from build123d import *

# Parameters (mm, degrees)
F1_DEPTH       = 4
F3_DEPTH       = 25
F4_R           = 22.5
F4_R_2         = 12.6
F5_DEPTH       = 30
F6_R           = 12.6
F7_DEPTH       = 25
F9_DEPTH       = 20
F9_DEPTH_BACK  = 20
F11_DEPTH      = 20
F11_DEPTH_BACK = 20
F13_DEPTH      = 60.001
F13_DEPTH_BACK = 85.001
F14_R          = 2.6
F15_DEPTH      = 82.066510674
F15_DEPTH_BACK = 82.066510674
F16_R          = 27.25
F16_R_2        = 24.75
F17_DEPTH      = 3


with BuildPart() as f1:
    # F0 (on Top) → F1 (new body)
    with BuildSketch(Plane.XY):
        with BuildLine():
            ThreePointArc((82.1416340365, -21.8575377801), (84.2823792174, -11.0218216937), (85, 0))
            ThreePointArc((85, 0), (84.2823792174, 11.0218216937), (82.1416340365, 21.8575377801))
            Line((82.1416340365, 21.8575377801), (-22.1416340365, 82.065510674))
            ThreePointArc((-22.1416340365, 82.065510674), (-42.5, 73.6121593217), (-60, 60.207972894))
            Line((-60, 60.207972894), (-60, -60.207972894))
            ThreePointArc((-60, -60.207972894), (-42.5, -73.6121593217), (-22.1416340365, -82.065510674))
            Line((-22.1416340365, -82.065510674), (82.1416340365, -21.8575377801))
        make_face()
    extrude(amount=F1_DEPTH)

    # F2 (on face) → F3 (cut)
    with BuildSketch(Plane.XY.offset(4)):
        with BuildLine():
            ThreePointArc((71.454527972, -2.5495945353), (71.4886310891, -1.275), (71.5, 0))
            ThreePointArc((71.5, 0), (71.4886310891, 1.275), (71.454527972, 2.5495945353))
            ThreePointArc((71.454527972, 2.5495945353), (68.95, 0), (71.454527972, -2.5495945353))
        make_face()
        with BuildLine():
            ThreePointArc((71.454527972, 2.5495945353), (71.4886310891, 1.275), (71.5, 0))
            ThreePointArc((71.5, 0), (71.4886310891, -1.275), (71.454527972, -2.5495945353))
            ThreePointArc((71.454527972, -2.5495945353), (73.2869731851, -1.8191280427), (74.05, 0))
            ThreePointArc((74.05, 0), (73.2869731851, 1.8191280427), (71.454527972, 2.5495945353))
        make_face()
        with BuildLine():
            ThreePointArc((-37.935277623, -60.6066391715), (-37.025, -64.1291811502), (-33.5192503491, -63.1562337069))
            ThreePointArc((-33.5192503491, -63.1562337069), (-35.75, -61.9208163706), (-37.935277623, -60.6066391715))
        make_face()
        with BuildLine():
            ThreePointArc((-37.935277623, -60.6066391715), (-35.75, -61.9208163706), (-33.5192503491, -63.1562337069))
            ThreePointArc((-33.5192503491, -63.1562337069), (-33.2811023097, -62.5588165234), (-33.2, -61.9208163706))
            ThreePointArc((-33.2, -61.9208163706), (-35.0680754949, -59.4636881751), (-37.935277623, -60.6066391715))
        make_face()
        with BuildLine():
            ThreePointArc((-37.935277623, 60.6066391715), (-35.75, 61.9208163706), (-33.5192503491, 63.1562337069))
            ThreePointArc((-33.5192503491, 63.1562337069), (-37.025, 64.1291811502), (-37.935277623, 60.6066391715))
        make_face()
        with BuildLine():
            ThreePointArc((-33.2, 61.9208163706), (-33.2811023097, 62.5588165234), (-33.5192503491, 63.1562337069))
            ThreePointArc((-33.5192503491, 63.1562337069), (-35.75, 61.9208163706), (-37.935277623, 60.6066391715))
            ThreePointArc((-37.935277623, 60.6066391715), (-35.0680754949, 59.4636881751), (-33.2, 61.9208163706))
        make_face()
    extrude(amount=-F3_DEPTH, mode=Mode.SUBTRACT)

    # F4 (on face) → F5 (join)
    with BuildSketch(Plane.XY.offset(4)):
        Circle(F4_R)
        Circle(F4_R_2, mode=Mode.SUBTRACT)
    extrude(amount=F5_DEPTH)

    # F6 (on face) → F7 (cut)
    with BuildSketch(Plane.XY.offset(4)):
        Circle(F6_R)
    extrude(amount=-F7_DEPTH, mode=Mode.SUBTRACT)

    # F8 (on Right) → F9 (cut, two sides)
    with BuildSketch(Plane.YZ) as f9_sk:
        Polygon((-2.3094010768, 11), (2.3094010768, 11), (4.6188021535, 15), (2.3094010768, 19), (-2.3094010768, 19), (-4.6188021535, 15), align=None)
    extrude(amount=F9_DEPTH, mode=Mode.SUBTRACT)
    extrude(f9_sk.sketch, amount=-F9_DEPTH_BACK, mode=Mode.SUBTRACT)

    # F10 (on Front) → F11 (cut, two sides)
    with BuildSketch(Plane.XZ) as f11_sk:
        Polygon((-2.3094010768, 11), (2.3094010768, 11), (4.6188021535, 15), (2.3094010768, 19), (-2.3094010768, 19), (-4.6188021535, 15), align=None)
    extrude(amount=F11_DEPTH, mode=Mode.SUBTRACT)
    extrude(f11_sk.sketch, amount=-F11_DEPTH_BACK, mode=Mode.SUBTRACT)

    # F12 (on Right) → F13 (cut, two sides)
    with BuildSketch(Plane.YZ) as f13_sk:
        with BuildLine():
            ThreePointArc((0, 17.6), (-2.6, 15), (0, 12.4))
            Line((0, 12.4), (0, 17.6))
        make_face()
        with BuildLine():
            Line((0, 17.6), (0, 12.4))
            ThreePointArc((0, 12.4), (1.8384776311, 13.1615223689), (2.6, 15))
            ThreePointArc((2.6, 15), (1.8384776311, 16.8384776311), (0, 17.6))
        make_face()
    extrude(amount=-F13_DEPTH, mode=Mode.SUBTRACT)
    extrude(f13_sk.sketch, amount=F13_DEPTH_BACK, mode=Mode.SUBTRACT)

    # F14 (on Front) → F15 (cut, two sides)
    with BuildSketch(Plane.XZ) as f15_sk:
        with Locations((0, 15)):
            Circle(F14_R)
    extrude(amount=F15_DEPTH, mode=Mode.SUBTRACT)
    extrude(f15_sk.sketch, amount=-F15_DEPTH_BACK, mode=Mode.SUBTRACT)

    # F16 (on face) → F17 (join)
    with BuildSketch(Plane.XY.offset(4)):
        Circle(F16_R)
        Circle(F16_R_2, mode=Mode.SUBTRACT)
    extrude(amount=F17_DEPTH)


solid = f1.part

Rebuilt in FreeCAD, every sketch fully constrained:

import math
import FreeCAD as App
import Part
import Sketcher

V = App.Vector
Q = App.Units.Quantity

doc = App.newDocument("Part")
body = doc.addObject("PartDesign::Body", "Body")

sketch1 = body.newObject("Sketcher::SketchObject", "Sketch")
sketch1.AttachmentSupport = (doc.getObject("XY_Plane"), [""])
sketch1.MapMode = "FlatFace"
sketch1.addGeometry([
    Part.ArcOfCircle(Part.Circle(V(0, 0, 0), V(0, 0, 1), 85), math.radians(-14.9), math.radians(0)),
    Part.ArcOfCircle(Part.Circle(V(0, 0, 0), V(0, 0, 1), 85), math.radians(0), math.radians(14.9)),
    Part.LineSegment(V(82, 22, 0), V(-22, 82, 0)),
    Part.ArcOfCircle(Part.Circle(V(0, 0, 0), V(0, 0, 1), 85), math.radians(105), math.radians(135)),
    Part.LineSegment(V(-60, 60, 0), V(-60, -60, 0)),
    Part.ArcOfCircle(Part.Circle(V(0, 0, 0), V(0, 0, 1), 85), math.radians(-135), math.radians(-105)),
    Part.LineSegment(V(-22, -82, 0), V(82, -22, 0)),
], False)
sketch1.addConstraint([
    Sketcher.Constraint("Tangent", 0, 2, 1, 1),
    Sketcher.Constraint("Coincident", 1, 2, 2, 1),
    Sketcher.Constraint("Coincident", 2, 2, 3, 1),
    Sketcher.Constraint("Coincident", 3, 2, 4, 1),
    Sketcher.Constraint("Coincident", 4, 2, 5, 1),
    Sketcher.Constraint("Coincident", 5, 2, 6, 1),
    Sketcher.Constraint("Coincident", 6, 2, 0, 1),
    Sketcher.Constraint("Vertical", 4),
    Sketcher.Constraint("Coincident", 0, 3, -1, 1),
    Sketcher.Constraint("Coincident", 3, 3, -1, 1),
    Sketcher.Constraint("Coincident", 5, 3, -1, 1),
    Sketcher.Constraint("Equal", 0, 1),
    Sketcher.Constraint("Equal", 1, 3),
    Sketcher.Constraint("Equal", 3, 5),
    Sketcher.Constraint("PointOnObject", 0, 2, -1),
    Sketcher.Constraint("Vertical", 2, 2, 5, 2),
    Sketcher.Constraint("Vertical", 1, 2, 6, 2),
    Sketcher.Constraint("Radius", 0, 85.0),
    Sketcher.Constraint("Angle", 2, Q("150 deg")),
    Sketcher.Constraint("DistanceX", 3, 2, -1, 1, 60.0),
    Sketcher.Constraint("DistanceY", -1, 1, 2, 2, 82.065511),
])
pad1 = body.newObject("PartDesign::Pad", "Pad")
pad1.Profile = sketch1
pad1.Length = 4

sketch2 = body.newObject("Sketcher::SketchObject", "Sketch001")
sketch2.AttachmentSupport = (doc.getObject("XY_Plane"), [""])
sketch2.MapMode = "FlatFace"
sketch2.AttachmentOffset = App.Placement(V(0, 0, 4), App.Rotation())
sketch2.addGeometry([
    Part.ArcOfCircle(Part.Circle(V(71.5, 0, 0), V(0, 0, 1), 2.5), math.radians(91), math.radians(269)),
    Part.ArcOfCircle(Part.Circle(V(71.5, 0, 0), V(0, 0, 1), 2.5), math.radians(-91), math.radians(0)),
    Part.ArcOfCircle(Part.Circle(V(71.5, 0, 0), V(0, 0, 1), 2.5), math.radians(0), math.radians(91)),
    Part.ArcOfCircle(Part.Circle(V(-35.8, -61.9, 0), V(0, 0, 1), 2.5), math.radians(149), math.radians(331)),
    Part.ArcOfCircle(Part.Circle(V(-35.7, -61.9, 0), V(0, 0, 1), 2.5), math.radians(-29), math.radians(0)),
    Part.ArcOfCircle(Part.Circle(V(-35.8, -61.9, 0), V(0, 0, 1), 2.5), math.radians(0), math.radians(149)),
    Part.ArcOfCircle(Part.Circle(V(-35.8, 61.9, 0), V(0, 0, 1), 2.5), math.radians(29), math.radians(211)),
    Part.ArcOfCircle(Part.Circle(V(-35.8, 61.9, 0), V(0, 0, 1), 2.5), math.radians(-149), math.radians(0)),
    Part.ArcOfCircle(Part.Circle(V(-35.7, 61.9, 0), V(0, 0, 1), 2.5), math.radians(0), math.radians(29)),
], False)
sketch2.addConstraint([
    Sketcher.Constraint("Tangent", 0, 2, 1, 1),
    Sketcher.Constraint("Tangent", 1, 2, 2, 1),
    Sketcher.Constraint("Tangent", 2, 2, 0, 1),
    Sketcher.Constraint("Tangent", 3, 2, 4, 1),
    Sketcher.Constraint("Tangent", 4, 2, 5, 1),
    Sketcher.Constraint("Tangent", 5, 2, 3, 1),
    Sketcher.Constraint("Tangent", 6, 2, 7, 1),
    Sketcher.Constraint("Tangent", 7, 2, 8, 1),
    Sketcher.Constraint("Tangent", 8, 2, 6, 1),
    Sketcher.Constraint("Equal", 2, 3),
    Sketcher.Constraint("Equal", 5, 6),
    Sketcher.Constraint("Symmetric", 3, 3, 6, 3, -1),
    Sketcher.Constraint("Symmetric", 0, 2, 2, 2, -1),
    Sketcher.Constraint("PointOnObject", 1, 2, -1),
    Sketcher.Constraint("Horizontal", 5, 3, 4, 2),
    Sketcher.Constraint("Horizontal", 8, 3, 7, 2),
    Sketcher.Constraint("Vertical", 5, 2, 6, 2),
    Sketcher.Constraint("Vertical", 3, 2, 8, 2),
    Sketcher.Constraint("Radius", 0, 2.55),
    Sketcher.Constraint("DistanceX", -1, 1, 0, 3, 71.5),
    Sketcher.Constraint("DistanceX", 4, 2, -1, 1, 33.2),
    Sketcher.Constraint("DistanceX", 3, 2, -1, 1, 33.51925),
    Sketcher.Constraint("DistanceY", 5, 2, -1, 1, 60.606639),
    Sketcher.Constraint("DistanceY", 4, 3, 0, 2, 59.371222),
    Sketcher.Constraint("DistanceY", 0, 2, 2, 2, 5.099189),
])
pocket1 = body.newObject("PartDesign::Pocket", "Pocket")
pocket1.Profile = sketch2
pocket1.Length = 25

sketch3 = body.newObject("Sketcher::SketchObject", "Sketch002")
sketch3.AttachmentSupport = (doc.getObject("XY_Plane"), [""])
sketch3.MapMode = "FlatFace"
sketch3.AttachmentOffset = App.Placement(V(0, 0, 4), App.Rotation())
sketch3.addGeometry([
    Part.Circle(V(0, 0, 0), V(0, 0, 1), 22),
    Part.Circle(V(0, 0, 0), V(0, 0, 1), 13),
], False)
sketch3.addConstraint([
    Sketcher.Constraint("Coincident", 0, 3, -1, 1),
    Sketcher.Constraint("Coincident", 1, 3, -1, 1),
    Sketcher.Constraint("Diameter", 0, 45.0),
    Sketcher.Constraint("Diameter", 1, 25.2),
])
pad2 = body.newObject("PartDesign::Pad", "Pad001")
pad2.Profile = sketch3
pad2.Length = 30

sketch4 = body.newObject("Sketcher::SketchObject", "Sketch003")
sketch4.AttachmentSupport = (doc.getObject("XY_Plane"), [""])
sketch4.MapMode = "FlatFace"
sketch4.AttachmentOffset = App.Placement(V(0, 0, 4), App.Rotation())
sketch4.addGeometry(Part.Circle(V(0, 0, 0), V(0, 0, 1), 13), False)
sketch4.addConstraint([
    Sketcher.Constraint("Coincident", 0, 3, -1, 1),
    Sketcher.Constraint("Diameter", 0, 25.2),
])
pocket2 = body.newObject("PartDesign::Pocket", "Pocket001")
pocket2.Profile = sketch4
pocket2.Length = 25

sketch5 = body.newObject("Sketcher::SketchObject", "Sketch004")
sketch5.AttachmentSupport = (doc.getObject("YZ_Plane"), [""])
sketch5.MapMode = "FlatFace"
sketch5.addGeometry([
    Part.LineSegment(V(-2.3, 11, 0), V(2.3, 11, 0)),
    Part.LineSegment(V(2.3, 11, 0), V(4.6, 15, 0)),
    Part.LineSegment(V(4.6, 15, 0), V(2.3, 19, 0)),
    Part.LineSegment(V(2.3, 19, 0), V(-2.3, 19, 0)),
    Part.LineSegment(V(-2.3, 19, 0), V(-4.6, 15, 0)),
    Part.LineSegment(V(-4.6, 15, 0), V(-2.3, 11, 0)),
], False)
sketch5.addConstraint([
    Sketcher.Constraint("Coincident", 0, 2, 1, 1),
    Sketcher.Constraint("Coincident", 1, 2, 2, 1),
    Sketcher.Constraint("Coincident", 2, 2, 3, 1),
    Sketcher.Constraint("Coincident", 3, 2, 4, 1),
    Sketcher.Constraint("Coincident", 4, 2, 5, 1),
    Sketcher.Constraint("Coincident", 5, 2, 0, 1),
    Sketcher.Constraint("Horizontal", 0),
    Sketcher.Constraint("Horizontal", 3),
    Sketcher.Constraint("Symmetric", 1, 2, 4, 2, -2),
    Sketcher.Constraint("Parallel", 1, 4),
    Sketcher.Constraint("Parallel", 2, 5),
    Sketcher.Constraint("Vertical", 0, 2, 2, 2),
    Sketcher.Constraint("Vertical", 3, 2, 5, 2),
    Sketcher.Constraint("Angle", 1, Q("60 deg")),
    Sketcher.Constraint("DistanceY", -1, 1, 0, 2, 11.0),
    Sketcher.Constraint("DistanceY", -1, 1, 1, 2, 15.0),
    Sketcher.Constraint("DistanceX", -1, 1, 0, 2, 2.309401),
])
pocket3 = body.newObject("PartDesign::Pocket", "Pocket002")
pocket3.Profile = sketch5
pocket3.Type = "TwoLengths"
pocket3.Length = 20
pocket3.Length2 = 20
pocket3.Reversed = True

sketch6 = body.newObject("Sketcher::SketchObject", "Sketch005")
sketch6.AttachmentSupport = (doc.getObject("XZ_Plane"), [""])
sketch6.MapMode = "FlatFace"
sketch6.addGeometry([
    Part.LineSegment(V(-2.3, 11, 0), V(2.3, 11, 0)),
    Part.LineSegment(V(2.3, 11, 0), V(4.6, 15, 0)),
    Part.LineSegment(V(4.6, 15, 0), V(2.3, 19, 0)),
    Part.LineSegment(V(2.3, 19, 0), V(-2.3, 19, 0)),
    Part.LineSegment(V(-2.3, 19, 0), V(-4.6, 15, 0)),
    Part.LineSegment(V(-4.6, 15, 0), V(-2.3, 11, 0)),
], False)
sketch6.addConstraint([
    Sketcher.Constraint("Coincident", 0, 2, 1, 1),
    Sketcher.Constraint("Coincident", 1, 2, 2, 1),
    Sketcher.Constraint("Coincident", 2, 2, 3, 1),
    Sketcher.Constraint("Coincident", 3, 2, 4, 1),
    Sketcher.Constraint("Coincident", 4, 2, 5, 1),
    Sketcher.Constraint("Coincident", 5, 2, 0, 1),
    Sketcher.Constraint("Horizontal", 0),
    Sketcher.Constraint("Horizontal", 3),
    Sketcher.Constraint("Symmetric", 1, 2, 4, 2, -2),
    Sketcher.Constraint("Parallel", 1, 4),
    Sketcher.Constraint("Parallel", 2, 5),
    Sketcher.Constraint("Vertical", 0, 2, 2, 2),
    Sketcher.Constraint("Vertical", 3, 2, 5, 2),
    Sketcher.Constraint("Angle", 1, Q("60 deg")),
    Sketcher.Constraint("DistanceY", -1, 1, 0, 2, 11.0),
    Sketcher.Constraint("DistanceY", -1, 1, 1, 2, 15.0),
    Sketcher.Constraint("DistanceX", -1, 1, 0, 2, 2.309401),
])
pocket4 = body.newObject("PartDesign::Pocket", "Pocket003")
pocket4.Profile = sketch6
pocket4.Type = "TwoLengths"
pocket4.Length = 20
pocket4.Length2 = 20
pocket4.Reversed = True

sketch7 = body.newObject("Sketcher::SketchObject", "Sketch006")
sketch7.AttachmentSupport = (doc.getObject("YZ_Plane"), [""])
sketch7.MapMode = "FlatFace"
sketch7.addGeometry([
    Part.ArcOfCircle(Part.Circle(V(0, 15, 0), V(0, 0, 1), 2.6), math.radians(90), math.radians(270)),
    Part.ArcOfCircle(Part.Circle(V(0, 15, 0), V(0, 0, 1), 2.6), math.radians(-90), math.radians(0)),
    Part.ArcOfCircle(Part.Circle(V(0, 15, 0), V(0, 0, 1), 2.6), math.radians(0), math.radians(90)),
], False)
sketch7.addConstraint([
    Sketcher.Constraint("Tangent", 0, 2, 1, 1),
    Sketcher.Constraint("Tangent", 1, 2, 2, 1),
    Sketcher.Constraint("Tangent", 2, 2, 0, 1),
    Sketcher.Constraint("PointOnObject", 0, 3, -2),
    Sketcher.Constraint("PointOnObject", 0, 2, -2),
    Sketcher.Constraint("PointOnObject", 2, 2, -2),
    Sketcher.Constraint("Horizontal", 2, 3, 1, 2),
    Sketcher.Constraint("Radius", 0, 2.6),
    Sketcher.Constraint("DistanceY", -1, 1, 0, 3, 15.0),
])
pocket5 = body.newObject("PartDesign::Pocket", "Pocket004")
pocket5.Profile = sketch7
pocket5.Type = "ThroughAll"
pocket5.Midplane = True

sketch8 = body.newObject("Sketcher::SketchObject", "Sketch007")
sketch8.AttachmentSupport = (doc.getObject("XZ_Plane"), [""])
sketch8.MapMode = "FlatFace"
sketch8.addGeometry(Part.Circle(V(0, 15, 0), V(0, 0, 1), 2.6), False)
sketch8.addConstraint([
    Sketcher.Constraint("PointOnObject", 0, 3, -2),
    Sketcher.Constraint("Diameter", 0, 5.2),
    Sketcher.Constraint("DistanceY", -1, 1, 0, 3, 15.0),
])
pocket6 = body.newObject("PartDesign::Pocket", "Pocket005")
pocket6.Profile = sketch8
pocket6.Type = "ThroughAll"
pocket6.Midplane = True

sketch9 = body.newObject("Sketcher::SketchObject", "Sketch008")
sketch9.AttachmentSupport = (doc.getObject("XY_Plane"), [""])
sketch9.MapMode = "FlatFace"
sketch9.AttachmentOffset = App.Placement(V(0, 0, 4), App.Rotation())
sketch9.addGeometry([
    Part.Circle(V(0, 0, 0), V(0, 0, 1), 27),
    Part.Circle(V(0, 0, 0), V(0, 0, 1), 25),
], False)
sketch9.addConstraint([
    Sketcher.Constraint("Coincident", 0, 3, -1, 1),
    Sketcher.Constraint("Coincident", 1, 3, -1, 1),
    Sketcher.Constraint("Diameter", 0, 54.5),
    Sketcher.Constraint("Diameter", 1, 49.5),
])
pad3 = body.newObject("PartDesign::Pad", "Pad002")
pad3.Profile = sketch9
pad3.Length = 3

doc.recompute()
